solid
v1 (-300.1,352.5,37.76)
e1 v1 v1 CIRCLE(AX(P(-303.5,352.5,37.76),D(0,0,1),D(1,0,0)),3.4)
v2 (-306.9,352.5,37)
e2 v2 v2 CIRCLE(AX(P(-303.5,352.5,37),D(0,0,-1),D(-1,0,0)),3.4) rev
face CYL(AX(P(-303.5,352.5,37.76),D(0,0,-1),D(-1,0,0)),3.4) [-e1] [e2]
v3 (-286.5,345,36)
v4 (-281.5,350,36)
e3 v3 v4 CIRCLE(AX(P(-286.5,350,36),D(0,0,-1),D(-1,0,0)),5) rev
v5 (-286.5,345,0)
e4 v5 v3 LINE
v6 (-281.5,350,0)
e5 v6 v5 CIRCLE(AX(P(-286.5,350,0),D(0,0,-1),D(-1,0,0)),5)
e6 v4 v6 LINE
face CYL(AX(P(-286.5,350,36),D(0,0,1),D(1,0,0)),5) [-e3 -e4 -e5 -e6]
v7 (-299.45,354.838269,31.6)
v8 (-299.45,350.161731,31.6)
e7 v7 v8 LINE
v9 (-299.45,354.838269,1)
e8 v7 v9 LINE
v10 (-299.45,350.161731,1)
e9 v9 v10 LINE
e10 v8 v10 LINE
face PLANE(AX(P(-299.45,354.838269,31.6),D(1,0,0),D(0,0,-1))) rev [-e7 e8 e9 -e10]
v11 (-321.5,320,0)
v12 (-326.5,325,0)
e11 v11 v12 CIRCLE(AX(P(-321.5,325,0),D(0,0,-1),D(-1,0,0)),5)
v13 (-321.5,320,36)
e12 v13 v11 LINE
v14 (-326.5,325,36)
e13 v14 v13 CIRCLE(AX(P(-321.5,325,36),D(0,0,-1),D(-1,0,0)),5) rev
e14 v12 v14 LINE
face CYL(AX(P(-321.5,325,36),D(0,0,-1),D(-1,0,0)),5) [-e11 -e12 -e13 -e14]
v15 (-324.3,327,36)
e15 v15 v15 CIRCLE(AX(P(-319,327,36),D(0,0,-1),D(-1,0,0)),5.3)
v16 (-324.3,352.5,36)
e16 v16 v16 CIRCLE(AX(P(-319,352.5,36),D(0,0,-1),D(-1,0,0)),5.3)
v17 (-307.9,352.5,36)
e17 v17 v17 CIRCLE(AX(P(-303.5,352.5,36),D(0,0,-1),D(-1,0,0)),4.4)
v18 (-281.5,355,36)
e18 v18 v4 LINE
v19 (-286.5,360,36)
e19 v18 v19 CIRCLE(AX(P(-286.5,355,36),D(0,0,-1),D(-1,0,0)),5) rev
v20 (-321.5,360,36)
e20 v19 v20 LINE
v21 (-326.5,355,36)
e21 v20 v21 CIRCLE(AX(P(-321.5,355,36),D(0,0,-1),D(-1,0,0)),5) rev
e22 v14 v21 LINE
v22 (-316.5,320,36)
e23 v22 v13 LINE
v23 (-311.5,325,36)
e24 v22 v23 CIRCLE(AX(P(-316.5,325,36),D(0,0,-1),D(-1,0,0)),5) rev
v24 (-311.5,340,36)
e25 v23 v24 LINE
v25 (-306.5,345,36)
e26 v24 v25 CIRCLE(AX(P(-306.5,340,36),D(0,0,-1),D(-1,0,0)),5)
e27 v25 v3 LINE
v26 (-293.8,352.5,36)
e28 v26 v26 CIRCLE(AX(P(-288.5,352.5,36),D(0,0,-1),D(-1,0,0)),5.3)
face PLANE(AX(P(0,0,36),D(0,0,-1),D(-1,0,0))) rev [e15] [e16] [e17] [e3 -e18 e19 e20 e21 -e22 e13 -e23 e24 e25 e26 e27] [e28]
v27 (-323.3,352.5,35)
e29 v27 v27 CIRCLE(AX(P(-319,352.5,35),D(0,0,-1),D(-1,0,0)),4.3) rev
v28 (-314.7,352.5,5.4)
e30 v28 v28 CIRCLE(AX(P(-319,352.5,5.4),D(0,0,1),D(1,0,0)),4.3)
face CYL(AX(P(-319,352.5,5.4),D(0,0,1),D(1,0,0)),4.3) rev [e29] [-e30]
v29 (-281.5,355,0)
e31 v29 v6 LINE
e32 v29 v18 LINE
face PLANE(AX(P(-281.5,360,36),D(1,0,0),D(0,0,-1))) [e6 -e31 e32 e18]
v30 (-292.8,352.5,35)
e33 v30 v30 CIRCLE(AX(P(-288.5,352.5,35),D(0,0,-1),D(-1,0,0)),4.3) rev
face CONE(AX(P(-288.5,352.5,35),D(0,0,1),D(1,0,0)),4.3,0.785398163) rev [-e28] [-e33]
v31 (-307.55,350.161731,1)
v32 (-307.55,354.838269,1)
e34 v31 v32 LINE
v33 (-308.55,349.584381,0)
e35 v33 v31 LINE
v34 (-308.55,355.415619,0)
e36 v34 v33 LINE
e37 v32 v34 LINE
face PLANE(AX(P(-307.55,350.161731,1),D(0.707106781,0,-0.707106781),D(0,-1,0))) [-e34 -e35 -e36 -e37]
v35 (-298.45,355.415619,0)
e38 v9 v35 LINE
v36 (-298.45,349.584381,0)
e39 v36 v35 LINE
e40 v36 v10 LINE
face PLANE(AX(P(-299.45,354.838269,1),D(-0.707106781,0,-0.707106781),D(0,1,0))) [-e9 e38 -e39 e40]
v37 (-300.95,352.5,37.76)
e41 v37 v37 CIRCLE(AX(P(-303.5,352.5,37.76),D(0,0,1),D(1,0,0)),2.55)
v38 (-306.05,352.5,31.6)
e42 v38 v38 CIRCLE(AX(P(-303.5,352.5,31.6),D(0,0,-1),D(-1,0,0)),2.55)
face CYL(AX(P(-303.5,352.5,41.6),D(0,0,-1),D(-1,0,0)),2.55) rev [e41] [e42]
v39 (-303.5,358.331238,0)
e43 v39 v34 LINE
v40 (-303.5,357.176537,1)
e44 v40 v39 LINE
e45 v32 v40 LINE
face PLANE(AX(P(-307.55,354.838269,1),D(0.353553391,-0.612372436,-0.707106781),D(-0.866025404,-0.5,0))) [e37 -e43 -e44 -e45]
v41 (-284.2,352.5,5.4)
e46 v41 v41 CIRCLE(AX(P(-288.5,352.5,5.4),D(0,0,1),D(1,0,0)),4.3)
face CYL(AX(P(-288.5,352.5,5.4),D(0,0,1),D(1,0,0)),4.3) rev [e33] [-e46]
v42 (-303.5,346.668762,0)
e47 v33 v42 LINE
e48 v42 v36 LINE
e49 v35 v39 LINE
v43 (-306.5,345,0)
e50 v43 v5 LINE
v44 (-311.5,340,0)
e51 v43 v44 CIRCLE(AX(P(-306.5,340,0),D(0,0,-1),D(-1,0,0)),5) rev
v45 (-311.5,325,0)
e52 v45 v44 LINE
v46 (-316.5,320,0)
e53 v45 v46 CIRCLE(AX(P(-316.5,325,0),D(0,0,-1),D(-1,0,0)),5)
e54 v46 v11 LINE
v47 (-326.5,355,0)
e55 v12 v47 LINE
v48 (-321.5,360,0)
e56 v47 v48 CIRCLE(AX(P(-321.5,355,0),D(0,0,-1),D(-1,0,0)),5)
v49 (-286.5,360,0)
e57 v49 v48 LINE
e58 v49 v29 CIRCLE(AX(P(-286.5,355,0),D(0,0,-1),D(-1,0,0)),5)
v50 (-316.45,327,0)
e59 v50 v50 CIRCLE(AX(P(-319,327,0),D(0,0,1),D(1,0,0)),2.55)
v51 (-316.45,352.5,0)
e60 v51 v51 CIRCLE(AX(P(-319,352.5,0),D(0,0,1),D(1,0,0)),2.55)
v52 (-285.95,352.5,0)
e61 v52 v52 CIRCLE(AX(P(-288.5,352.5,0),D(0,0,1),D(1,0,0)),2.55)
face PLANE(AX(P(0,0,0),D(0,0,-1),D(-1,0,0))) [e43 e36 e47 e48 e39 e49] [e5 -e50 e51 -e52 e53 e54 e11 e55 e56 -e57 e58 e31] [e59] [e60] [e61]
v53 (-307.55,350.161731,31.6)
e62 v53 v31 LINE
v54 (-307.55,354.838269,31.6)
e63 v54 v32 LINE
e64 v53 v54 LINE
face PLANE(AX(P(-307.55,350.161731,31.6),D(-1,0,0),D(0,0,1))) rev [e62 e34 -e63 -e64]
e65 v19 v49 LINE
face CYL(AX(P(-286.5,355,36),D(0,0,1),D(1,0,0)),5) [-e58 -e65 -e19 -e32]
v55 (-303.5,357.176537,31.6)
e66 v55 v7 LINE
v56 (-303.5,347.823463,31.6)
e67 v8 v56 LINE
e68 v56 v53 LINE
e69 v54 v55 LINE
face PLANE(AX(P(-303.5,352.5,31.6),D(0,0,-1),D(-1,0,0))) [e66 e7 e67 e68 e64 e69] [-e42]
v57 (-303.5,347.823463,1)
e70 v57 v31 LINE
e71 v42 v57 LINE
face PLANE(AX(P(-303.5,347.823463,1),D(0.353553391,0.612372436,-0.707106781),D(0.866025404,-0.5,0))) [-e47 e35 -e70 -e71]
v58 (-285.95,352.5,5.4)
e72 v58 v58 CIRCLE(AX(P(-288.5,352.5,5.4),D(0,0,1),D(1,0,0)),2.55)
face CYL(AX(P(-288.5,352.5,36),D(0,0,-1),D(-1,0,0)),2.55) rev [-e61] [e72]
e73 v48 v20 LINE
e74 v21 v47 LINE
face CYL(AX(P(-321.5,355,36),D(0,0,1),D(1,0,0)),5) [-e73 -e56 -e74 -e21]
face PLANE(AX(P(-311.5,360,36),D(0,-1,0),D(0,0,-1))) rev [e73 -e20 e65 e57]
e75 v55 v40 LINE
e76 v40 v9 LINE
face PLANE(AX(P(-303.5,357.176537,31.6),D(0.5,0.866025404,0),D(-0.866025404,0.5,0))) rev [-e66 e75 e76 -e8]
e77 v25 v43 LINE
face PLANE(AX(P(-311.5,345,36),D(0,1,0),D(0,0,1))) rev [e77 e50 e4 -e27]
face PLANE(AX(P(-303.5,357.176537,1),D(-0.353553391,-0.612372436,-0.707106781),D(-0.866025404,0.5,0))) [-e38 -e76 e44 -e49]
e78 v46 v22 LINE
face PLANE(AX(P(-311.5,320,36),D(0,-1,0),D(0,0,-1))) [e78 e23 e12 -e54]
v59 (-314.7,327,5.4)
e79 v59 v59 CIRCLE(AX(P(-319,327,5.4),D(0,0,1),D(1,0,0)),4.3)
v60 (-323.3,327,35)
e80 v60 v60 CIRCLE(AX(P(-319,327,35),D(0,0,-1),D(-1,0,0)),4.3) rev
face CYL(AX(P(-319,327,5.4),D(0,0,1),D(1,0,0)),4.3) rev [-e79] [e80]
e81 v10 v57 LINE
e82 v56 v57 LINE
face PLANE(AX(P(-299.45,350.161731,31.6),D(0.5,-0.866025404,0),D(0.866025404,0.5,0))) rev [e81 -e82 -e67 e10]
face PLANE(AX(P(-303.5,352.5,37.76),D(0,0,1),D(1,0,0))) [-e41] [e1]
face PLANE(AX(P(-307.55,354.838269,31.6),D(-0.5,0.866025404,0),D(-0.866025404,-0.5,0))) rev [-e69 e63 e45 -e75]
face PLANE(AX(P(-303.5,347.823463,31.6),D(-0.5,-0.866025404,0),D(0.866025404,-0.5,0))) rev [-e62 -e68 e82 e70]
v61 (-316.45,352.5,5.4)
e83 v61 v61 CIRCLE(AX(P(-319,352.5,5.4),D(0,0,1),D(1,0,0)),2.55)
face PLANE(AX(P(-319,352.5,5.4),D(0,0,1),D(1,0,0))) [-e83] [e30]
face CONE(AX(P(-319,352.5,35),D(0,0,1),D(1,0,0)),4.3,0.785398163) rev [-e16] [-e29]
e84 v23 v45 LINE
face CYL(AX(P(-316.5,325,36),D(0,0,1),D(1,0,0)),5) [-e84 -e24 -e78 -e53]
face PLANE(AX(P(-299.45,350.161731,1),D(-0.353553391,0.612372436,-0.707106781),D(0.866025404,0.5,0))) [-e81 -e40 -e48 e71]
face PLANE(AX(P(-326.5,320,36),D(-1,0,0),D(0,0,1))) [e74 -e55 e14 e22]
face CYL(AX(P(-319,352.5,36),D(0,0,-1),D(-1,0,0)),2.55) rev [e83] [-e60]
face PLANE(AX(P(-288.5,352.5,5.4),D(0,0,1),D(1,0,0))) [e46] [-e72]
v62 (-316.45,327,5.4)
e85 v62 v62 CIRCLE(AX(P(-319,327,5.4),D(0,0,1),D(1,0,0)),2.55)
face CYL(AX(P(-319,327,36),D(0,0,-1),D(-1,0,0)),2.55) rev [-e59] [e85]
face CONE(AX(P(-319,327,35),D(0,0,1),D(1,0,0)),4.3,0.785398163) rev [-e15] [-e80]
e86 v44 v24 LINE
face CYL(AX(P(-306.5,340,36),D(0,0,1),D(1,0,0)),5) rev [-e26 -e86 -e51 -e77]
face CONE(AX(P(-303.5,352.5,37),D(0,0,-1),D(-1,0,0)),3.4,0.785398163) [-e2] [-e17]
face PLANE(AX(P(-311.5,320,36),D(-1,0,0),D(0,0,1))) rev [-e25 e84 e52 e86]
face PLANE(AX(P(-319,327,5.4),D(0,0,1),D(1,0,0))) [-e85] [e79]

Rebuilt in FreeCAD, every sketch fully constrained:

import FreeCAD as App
import Part
import Sketcher
from FreeCAD import Vector
Q = App.Units.Quantity


def edges_at(feature, points):
    """Names of the edges that pass closest to the given points."""
    edges = feature.Shape.Edges
    near = lambda p: min(range(len(edges)), key=lambda i: edges[i].distToShape(Part.Vertex(*p))[0])
    return sorted({f"Edge{near(p) + 1}" for p in points})

doc = App.newDocument("Part")
body = doc.addObject("PartDesign::Body", "Body")

# Sketch on XY plane
sketch1 = doc.addObject("Sketcher::SketchObject", "Sketch")
body.addObject(sketch1)
sketch1.AttachmentSupport = (doc.XY_Plane, [""])
sketch1.MapMode = "FlatFace"
sketch1.addGeometry([
    Part.LineSegment(Vector(-326.5, 320, 0), Vector(-311.5, 320, 0)),  # 0
    Part.LineSegment(Vector(-311.5, 320, 0), Vector(-311.5, 345, 0)),  # 1
    Part.LineSegment(Vector(-311.5, 345, 0), Vector(-281.5, 345, 0)),  # 2
    Part.LineSegment(Vector(-281.5, 345, 0), Vector(-281.5, 360, 0)),  # 3
    Part.LineSegment(Vector(-281.5, 360, 0), Vector(-326.5, 360, 0)),  # 4
    Part.LineSegment(Vector(-326.5, 360, 0), Vector(-326.5, 320, 0)),  # 5
    Part.Circle(Vector(-319, 327, 0), Vector(0, 0, 1), 2.5),  # 6
    Part.Circle(Vector(-319, 352.5, 0), Vector(0, 0, 1), 2.5),  # 7
    Part.Circle(Vector(-288.5, 352.5, 0), Vector(0, 0, 1), 2.5),  # 8
], False)
sketch1.addConstraint([
    Sketcher.Constraint("Coincident", 0, 2, 1, 1),
    Sketcher.Constraint("Coincident", 1, 2, 2, 1),
    Sketcher.Constraint("Coincident", 2, 2, 3, 1),
    Sketcher.Constraint("Coincident", 3, 2, 4, 1),
    Sketcher.Constraint("Coincident", 4, 2, 5, 1),
    Sketcher.Constraint("Coincident", 5, 2, 0, 1),
    Sketcher.Constraint("Horizontal", 0),
    Sketcher.Constraint("Vertical", 1),
    Sketcher.Constraint("Horizontal", 2),
    Sketcher.Constraint("Vertical", 3),
    Sketcher.Constraint("Horizontal", 4),
    Sketcher.Constraint("Vertical", 5),
    Sketcher.Constraint("Equal", 6, 7),
    Sketcher.Constraint("Equal", 7, 8),
    Sketcher.Constraint("Horizontal", 7, 3, 8, 3),
    Sketcher.Constraint("Vertical", 6, 3, 7, 3),
    Sketcher.Constraint("Equal", 0, 3),
    Sketcher.Constraint("Diameter", 6, Q("5.1 mm")),
    Sketcher.Constraint("DistanceX", 0, 1, 0, 2, Q("15 mm")),
    Sketcher.Constraint("DistanceX", 2, 1, 2, 2, Q("30 mm")),
    Sketcher.Constraint("DistanceY", 1, 1, 1, 2, Q("25 mm")),
    Sketcher.Constraint("DistanceX", 6, 3, -1, 1, Q("319 mm")),
    Sketcher.Constraint("DistanceY", -1, 1, 6, 3, Q("327 mm")),
    Sketcher.Constraint("DistanceY", -1, 1, 0, 2, Q("320 mm")),
    Sketcher.Constraint("DistanceX", 0, 2, 8, 3, Q("23 mm")),
    Sketcher.Constraint("DistanceY", -1, 1, 7, 3, Q("352.5 mm")),
    Sketcher.Constraint("DistanceX", 8, 3, -1, 1, Q("288.5 mm")),
])
pad1 = doc.addObject("PartDesign::Pad", "Pad")
body.addObject(pad1)
pad1.Profile = sketch1
pad1.Length = 36

# Sketch on XY plane
sketch2 = doc.addObject("Sketcher::SketchObject", "Sketch001")
body.addObject(sketch2)
sketch2.AttachmentSupport = (doc.XY_Plane, [""])
sketch2.MapMode = "FlatFace"
sketch2.AttachmentOffset = App.Placement(Vector(0, 0, 36), App.Rotation())
sketch2.addGeometry([
    Part.Circle(Vector(-319, 352.5, 0), Vector(0, 0, 1), 4.3),
    Part.Circle(Vector(-319, 327, 0), Vector(0, 0, 1), 4.3),
    Part.Circle(Vector(-288.5, 352.5, 0), Vector(0, 0, 1), 4.3),
], False)
sketch2.addConstraint([
    Sketcher.Constraint("Equal", 0, 1),
    Sketcher.Constraint("Equal", 1, 2),
    Sketcher.Constraint("Horizontal", 0, 3, 2, 3),
    Sketcher.Constraint("Vertical", 0, 3, 1, 3),
    Sketcher.Constraint("Diameter", 0, Q("8.6 mm")),
    Sketcher.Constraint("DistanceX", 0, 3, -1, 1, Q("319 mm")),
    Sketcher.Constraint("DistanceY", -1, 1, 1, 3, Q("327 mm")),
    Sketcher.Constraint("DistanceY", -1, 1, 0, 3, Q("352.5 mm")),
    Sketcher.Constraint("DistanceX", 2, 3, -1, 1, Q("288.5 mm")),
])
pocket1 = doc.addObject("PartDesign::Pocket", "Pocket")
body.addObject(pocket1)
pocket1.Profile = sketch2
pocket1.Length = 30.6

# Sketch on XY plane
sketch3 = doc.addObject("Sketcher::SketchObject", "Sketch002")
body.addObject(sketch3)
sketch3.AttachmentSupport = (doc.XY_Plane, [""])
sketch3.MapMode = "FlatFace"
sketch3.addGeometry([
    Part.LineSegment(Vector(-307.6, 354.8, 0), Vector(-303.5, 357.2, 0)),  # 0
    Part.LineSegment(Vector(-303.5, 357.2, 0), Vector(-299.4, 354.8, 0)),  # 1
    Part.LineSegment(Vector(-299.4, 354.8, 0), Vector(-299.4, 350.2, 0)),  # 2
    Part.LineSegment(Vector(-299.4, 350.2, 0), Vector(-303.5, 347.8, 0)),  # 3
    Part.LineSegment(Vector(-303.5, 347.8, 0), Vector(-307.6, 350.2, 0)),  # 4
    Part.LineSegment(Vector(-307.6, 350.2, 0), Vector(-307.6, 354.8, 0)),  # 5
], False)
sketch3.addConstraint([
    Sketcher.Constraint("Coincident", 0, 2, 1, 1),
    Sketcher.Constraint("Coincident", 1, 2, 2, 1),
    Sketcher.Constraint("Coincident", 2, 2, 3, 1),
    Sketcher.Constraint("Coincident", 3, 2, 4, 1),
    Sketcher.Constraint("Coincident", 4, 2, 5, 1),
    Sketcher.Constraint("Coincident", 5, 2, 0, 1),
    Sketcher.Constraint("Vertical", 2),
    Sketcher.Constraint("Vertical", 5),
    Sketcher.Constraint("Parallel", 0, 3),
    Sketcher.Constraint("Parallel", 1, 4),
    Sketcher.Constraint("Horizontal", 2, 2, 4, 2),
    Sketcher.Constraint("Horizontal", 1, 2, 5, 2),
    Sketcher.Constraint("Vertical", 0, 2, 3, 2),
    Sketcher.Constraint("Angle", 0, Q("30 deg")),
    Sketcher.Constraint("DistanceX", 0, 2, -1, 1, Q("303.5 mm")),
    Sketcher.Constraint("DistanceX", 4, 2, 2, 2, Q("8.1 mm")),
    Sketcher.Constraint("DistanceY", 2, 2, 2, 1, Q("4.676537 mm")),
    Sketcher.Constraint("DistanceY", -1, 1, 1, 2, Q("354.838269 mm")),
])
pocket2 = doc.addObject("PartDesign::Pocket", "Pocket001")
body.addObject(pocket2)
pocket2.Profile = sketch3
pocket2.Length = 31.6
pocket2.Reversed = True
doc.recompute()

fillet = doc.addObject("PartDesign::Fillet", "Fillet")
body.addObject(fillet)
fillet.Base = (pocket2, edges_at(pocket2, [
    (-311.5, 345, 18),
    (-281.5, 345, 18),
    (-281.5, 360, 18),
    (-311.5, 320, 18),
    (-326.5, 320, 18),
    (-326.5, 360, 18),
]))
fillet.Radius = 5
doc.recompute()

chamfer = doc.addObject("PartDesign::Chamfer", "Chamfer")
body.addObject(chamfer)
chamfer.Base = (fillet, edges_at(fillet, [(-292.8, 352.5, 36), (-323.3, 327, 36), (-323.3, 352.5, 36)]))
chamfer.Size = 1

# Sketch on XY plane
sketch4 = doc.addObject("Sketcher::SketchObject", "Sketch003")
body.addObject(sketch4)
sketch4.AttachmentSupport = (doc.XY_Plane, [""])
sketch4.MapMode = "FlatFace"
sketch4.AttachmentOffset = App.Placement(Vector(0, 0, 31.6), App.Rotation())
sketch4.addGeometry(Part.Circle(Vector(-303.5, 352.5, 0), Vector(0, 0, 1), 2.5), False)
sketch4.addConstraint([
    Sketcher.Constraint("Diameter", 0, Q("5.1 mm")),
    Sketcher.Constraint("DistanceX", 0, 3, -1, 1, Q("303.5 mm")),
    Sketcher.Constraint("DistanceY", -1, 1, 0, 3, Q("352.5 mm")),
])
pocket3 = doc.addObject("PartDesign::Pocket", "Pocket002")
body.addObject(pocket3)
pocket3.Profile = sketch4
pocket3.Length = 10
pocket3.Reversed = True

# Sketch on XY plane
sketch5 = doc.addObject("Sketcher::SketchObject", "Sketch004")
body.addObject(sketch5)
sketch5.AttachmentSupport = (doc.XY_Plane, [""])
sketch5.MapMode = "FlatFace"
sketch5.AttachmentOffset = App.Placement(Vector(0, 0, 36), App.Rotation())
sketch5.addGeometry([
    Part.Circle(Vector(-303.5, 352.5, 0), Vector(0, 0, 1), 3.4),
    Part.Circle(Vector(-303.5, 352.5, 0), Vector(0, 0, 1), 2.5),
], False)
sketch5.addConstraint([
    Sketcher.Constraint("Coincident", 1, 3, 0, 3),
    Sketcher.Constraint("Diameter", 0, Q("6.8 mm")),
    Sketcher.Constraint("Diameter", 1, Q("5.1 mm")),
    Sketcher.Constraint("DistanceX", 0, 3, -1, 1, Q("303.5 mm")),
    Sketcher.Constraint("DistanceY", -1, 1, 0, 3, Q("352.5 mm")),
])
pad2 = doc.addObject("PartDesign::Pad", "Pad001")
body.addObject(pad2)
pad2.Profile = sketch5
pad2.Length = 1.76
doc.recompute()

chamfer2 = doc.addObject("PartDesign::Chamfer", "Chamfer001")
body.addObject(chamfer2)
chamfer2.Base = (pad2, edges_at(pad2, [(-300.1, 352.5, 36)]))
chamfer2.Size = 1
doc.recompute()

chamfer3 = doc.addObject("PartDesign::Chamfer", "Chamfer002")
body.addObject(chamfer3)
chamfer3.Base = (chamfer2, edges_at(chamfer2, [
    (-305.525, 348.993, 0),
    (-307.55, 352.5, 0),
    (-305.525, 356.007, 0),
    (-301.475, 356.007, 0),
    (-299.45, 352.5, 0),
    (-301.475, 348.993, 0),
]))
chamfer3.Size = 1

doc.recompute()
